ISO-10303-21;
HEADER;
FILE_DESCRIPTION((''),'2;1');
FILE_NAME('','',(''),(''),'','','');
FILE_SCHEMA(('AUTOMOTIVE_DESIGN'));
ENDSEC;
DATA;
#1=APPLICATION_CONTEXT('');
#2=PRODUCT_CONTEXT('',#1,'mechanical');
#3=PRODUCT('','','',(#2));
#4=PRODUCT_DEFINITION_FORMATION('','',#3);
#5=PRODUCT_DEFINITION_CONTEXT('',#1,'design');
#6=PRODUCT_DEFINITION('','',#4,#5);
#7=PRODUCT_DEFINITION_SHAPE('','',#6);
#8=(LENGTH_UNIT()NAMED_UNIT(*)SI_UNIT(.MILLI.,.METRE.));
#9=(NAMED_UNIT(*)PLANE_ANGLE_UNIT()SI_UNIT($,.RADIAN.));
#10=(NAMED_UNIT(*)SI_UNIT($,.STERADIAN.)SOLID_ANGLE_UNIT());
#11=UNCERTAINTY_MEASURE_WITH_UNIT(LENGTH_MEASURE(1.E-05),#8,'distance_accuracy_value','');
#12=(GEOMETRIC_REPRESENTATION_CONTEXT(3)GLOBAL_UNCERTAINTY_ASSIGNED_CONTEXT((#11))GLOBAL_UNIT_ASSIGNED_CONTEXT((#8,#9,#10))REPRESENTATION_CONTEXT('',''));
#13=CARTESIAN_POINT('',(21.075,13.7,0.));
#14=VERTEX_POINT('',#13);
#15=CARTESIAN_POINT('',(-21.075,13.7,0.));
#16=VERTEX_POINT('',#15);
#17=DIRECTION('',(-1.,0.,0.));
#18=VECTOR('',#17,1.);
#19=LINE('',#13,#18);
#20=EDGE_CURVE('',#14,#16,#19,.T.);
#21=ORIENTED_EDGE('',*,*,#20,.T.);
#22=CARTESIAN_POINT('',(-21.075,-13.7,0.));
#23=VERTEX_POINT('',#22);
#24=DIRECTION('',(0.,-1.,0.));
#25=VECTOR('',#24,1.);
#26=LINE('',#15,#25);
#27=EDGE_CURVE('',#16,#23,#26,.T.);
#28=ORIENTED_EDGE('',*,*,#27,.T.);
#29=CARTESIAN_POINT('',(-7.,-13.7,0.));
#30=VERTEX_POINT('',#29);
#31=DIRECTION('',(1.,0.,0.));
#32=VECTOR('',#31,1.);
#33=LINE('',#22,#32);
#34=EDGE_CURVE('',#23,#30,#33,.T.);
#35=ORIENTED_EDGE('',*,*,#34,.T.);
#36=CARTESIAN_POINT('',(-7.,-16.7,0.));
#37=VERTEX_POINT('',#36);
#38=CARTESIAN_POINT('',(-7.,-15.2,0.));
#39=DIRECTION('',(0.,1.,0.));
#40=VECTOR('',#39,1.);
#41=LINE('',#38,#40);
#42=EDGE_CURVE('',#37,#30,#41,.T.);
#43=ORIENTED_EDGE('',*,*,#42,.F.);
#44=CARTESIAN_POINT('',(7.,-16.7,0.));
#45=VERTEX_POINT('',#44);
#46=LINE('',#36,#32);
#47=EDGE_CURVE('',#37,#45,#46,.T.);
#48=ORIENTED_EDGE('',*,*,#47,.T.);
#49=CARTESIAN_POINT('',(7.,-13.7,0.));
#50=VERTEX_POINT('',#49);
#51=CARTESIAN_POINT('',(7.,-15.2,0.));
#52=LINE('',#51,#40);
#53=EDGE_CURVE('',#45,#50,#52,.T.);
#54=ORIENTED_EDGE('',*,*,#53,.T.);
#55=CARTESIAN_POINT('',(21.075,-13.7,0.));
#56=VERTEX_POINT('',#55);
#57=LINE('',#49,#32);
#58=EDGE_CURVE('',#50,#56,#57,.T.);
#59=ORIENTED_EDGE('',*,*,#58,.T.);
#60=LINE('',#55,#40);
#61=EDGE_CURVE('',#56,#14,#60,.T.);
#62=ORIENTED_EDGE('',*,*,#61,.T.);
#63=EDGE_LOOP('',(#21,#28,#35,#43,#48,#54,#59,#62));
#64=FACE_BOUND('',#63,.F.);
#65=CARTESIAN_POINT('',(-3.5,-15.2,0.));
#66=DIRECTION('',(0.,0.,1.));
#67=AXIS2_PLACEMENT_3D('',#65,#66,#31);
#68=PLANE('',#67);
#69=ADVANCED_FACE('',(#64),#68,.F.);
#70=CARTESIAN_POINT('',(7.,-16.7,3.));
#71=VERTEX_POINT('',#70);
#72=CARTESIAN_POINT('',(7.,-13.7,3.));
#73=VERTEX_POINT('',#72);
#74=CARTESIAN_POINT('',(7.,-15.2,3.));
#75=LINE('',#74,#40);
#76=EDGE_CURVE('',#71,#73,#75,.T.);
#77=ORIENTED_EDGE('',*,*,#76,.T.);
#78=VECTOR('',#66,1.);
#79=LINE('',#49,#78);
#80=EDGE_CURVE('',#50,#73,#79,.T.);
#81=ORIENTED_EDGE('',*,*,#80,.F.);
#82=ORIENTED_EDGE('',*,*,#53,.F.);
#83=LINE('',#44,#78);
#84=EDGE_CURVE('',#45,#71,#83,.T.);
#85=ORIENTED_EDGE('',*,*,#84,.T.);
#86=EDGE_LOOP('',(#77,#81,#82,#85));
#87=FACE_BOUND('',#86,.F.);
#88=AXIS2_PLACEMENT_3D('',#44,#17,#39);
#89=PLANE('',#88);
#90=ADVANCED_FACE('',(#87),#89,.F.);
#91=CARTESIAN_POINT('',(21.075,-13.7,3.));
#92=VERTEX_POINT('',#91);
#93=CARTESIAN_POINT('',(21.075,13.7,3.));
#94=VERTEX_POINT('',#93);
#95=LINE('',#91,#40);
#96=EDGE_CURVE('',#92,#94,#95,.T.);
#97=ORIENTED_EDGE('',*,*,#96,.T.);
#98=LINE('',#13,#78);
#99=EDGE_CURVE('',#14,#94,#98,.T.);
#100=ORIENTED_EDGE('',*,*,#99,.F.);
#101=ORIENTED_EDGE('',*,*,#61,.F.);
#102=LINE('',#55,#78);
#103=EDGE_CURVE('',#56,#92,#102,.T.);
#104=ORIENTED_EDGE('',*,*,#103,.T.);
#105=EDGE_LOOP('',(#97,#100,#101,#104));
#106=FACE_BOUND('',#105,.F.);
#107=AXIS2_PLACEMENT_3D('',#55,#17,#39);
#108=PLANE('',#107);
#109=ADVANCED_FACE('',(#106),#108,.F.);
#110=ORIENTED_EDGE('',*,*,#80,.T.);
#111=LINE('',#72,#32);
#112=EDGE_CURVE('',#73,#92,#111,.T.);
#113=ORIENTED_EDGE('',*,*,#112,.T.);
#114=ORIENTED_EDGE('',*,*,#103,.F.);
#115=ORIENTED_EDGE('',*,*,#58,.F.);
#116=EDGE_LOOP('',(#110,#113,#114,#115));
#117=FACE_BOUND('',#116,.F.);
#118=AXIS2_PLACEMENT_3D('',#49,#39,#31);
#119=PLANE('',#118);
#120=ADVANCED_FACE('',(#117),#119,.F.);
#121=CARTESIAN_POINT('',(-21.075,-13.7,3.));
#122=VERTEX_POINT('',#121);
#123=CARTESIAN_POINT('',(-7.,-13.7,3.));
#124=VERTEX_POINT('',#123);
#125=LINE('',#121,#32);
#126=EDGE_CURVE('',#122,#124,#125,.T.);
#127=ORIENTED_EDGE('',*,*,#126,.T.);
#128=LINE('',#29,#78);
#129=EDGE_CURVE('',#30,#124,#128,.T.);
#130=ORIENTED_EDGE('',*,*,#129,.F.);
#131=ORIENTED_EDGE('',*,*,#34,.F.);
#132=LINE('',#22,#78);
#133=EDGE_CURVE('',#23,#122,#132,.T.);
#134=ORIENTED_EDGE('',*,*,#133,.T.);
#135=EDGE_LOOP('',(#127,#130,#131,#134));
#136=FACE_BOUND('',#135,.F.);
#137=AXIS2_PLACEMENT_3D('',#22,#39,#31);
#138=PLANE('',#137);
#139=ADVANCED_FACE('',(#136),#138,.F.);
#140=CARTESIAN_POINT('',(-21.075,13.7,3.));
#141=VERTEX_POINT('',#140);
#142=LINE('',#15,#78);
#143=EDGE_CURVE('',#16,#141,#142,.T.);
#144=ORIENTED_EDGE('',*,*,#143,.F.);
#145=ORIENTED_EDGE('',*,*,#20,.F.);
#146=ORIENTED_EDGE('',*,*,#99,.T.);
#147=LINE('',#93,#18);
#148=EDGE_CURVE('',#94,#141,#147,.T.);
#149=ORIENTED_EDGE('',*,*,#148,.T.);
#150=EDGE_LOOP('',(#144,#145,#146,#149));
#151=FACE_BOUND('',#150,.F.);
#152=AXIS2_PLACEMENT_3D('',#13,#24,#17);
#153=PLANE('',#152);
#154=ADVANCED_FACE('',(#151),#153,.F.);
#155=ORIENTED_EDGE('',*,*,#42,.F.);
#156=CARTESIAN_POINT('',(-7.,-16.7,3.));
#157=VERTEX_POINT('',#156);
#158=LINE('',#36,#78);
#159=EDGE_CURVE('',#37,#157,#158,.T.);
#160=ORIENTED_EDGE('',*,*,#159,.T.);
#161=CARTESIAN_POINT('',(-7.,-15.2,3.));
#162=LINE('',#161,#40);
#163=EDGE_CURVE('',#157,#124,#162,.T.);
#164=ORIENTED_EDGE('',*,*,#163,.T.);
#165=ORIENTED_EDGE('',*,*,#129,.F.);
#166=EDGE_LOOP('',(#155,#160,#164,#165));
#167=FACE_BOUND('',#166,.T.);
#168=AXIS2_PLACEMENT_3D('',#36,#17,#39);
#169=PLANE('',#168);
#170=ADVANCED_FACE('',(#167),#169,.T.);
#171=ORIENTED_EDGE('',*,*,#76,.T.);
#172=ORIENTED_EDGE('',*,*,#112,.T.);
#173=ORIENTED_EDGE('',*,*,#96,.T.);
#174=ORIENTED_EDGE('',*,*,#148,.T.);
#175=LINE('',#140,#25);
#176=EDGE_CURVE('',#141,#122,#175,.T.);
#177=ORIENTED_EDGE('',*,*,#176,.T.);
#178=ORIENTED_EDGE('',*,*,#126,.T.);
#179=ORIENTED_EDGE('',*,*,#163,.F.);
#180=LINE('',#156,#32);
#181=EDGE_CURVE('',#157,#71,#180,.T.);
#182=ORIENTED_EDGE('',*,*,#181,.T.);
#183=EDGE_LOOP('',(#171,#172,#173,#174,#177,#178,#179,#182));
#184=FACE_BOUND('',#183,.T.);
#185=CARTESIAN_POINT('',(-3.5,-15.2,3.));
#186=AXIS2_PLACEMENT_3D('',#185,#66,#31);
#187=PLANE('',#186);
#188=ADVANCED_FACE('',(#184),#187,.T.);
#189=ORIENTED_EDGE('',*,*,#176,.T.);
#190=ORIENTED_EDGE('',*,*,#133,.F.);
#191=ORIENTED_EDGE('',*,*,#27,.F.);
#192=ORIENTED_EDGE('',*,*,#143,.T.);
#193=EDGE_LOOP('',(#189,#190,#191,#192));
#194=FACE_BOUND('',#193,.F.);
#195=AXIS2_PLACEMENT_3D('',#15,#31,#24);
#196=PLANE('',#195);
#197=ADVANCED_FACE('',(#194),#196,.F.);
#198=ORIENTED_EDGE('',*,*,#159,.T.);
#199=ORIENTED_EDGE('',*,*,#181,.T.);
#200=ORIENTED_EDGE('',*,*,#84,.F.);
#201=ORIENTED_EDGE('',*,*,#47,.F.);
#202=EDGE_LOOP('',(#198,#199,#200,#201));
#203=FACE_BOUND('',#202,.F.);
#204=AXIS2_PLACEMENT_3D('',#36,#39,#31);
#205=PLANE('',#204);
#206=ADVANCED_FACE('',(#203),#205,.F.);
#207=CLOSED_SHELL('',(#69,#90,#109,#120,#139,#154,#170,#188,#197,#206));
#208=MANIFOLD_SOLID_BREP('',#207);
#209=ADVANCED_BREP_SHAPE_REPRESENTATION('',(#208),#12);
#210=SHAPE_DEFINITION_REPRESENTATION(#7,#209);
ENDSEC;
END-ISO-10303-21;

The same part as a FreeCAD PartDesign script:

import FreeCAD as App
import Part
import Sketcher

doc = App.newDocument("Part")
body = doc.addObject("PartDesign::Body", "Body")

sketch1 = doc.addObject("Sketcher::SketchObject", "Sketch")
body.addObject(sketch1)
sketch1.AttachmentSupport = (doc.XY_Plane, [""])
sketch1.MapMode = "FlatFace"
sketch1.addGeometry(Part.LineSegment(App.Vector(-7, -13.7, 0), App.Vector(-7, -16.7, 0)), False)
sketch1.addGeometry(Part.LineSegment(App.Vector(-7, -16.7, 0), App.Vector(7, -16.7, 0)), False)
sketch1.addGeometry(Part.LineSegment(App.Vector(7, -16.7, 0), App.Vector(7, -13.7, 0)), False)
sketch1.addGeometry(Part.LineSegment(App.Vector(7, -13.7, 0), App.Vector(21.075, -13.7, 0)), False)
sketch1.addGeometry(Part.LineSegment(App.Vector(21.075, -13.7, 0), App.Vector(21.075, 13.7, 0)), False)
sketch1.addGeometry(Part.LineSegment(App.Vector(21.075, 13.7, 0), App.Vector(-21.075, 13.7, 0)), False)
sketch1.addGeometry(Part.LineSegment(App.Vector(-21.075, 13.7, 0), App.Vector(-21.075, -13.7, 0)), False)
sketch1.addGeometry(Part.LineSegment(App.Vector(-21.075, -13.7, 0), App.Vector(-7, -13.7, 0)), False)
sketch1.addConstraint(Sketcher.Constraint("Coincident", 0, 2, 1, 1))
sketch1.addConstraint(Sketcher.Constraint("Coincident", 1, 2, 2, 1))
sketch1.addConstraint(Sketcher.Constraint("Coincident", 2, 2, 3, 1))
sketch1.addConstraint(Sketcher.Constraint("Coincident", 3, 2, 4, 1))
sketch1.addConstraint(Sketcher.Constraint("Coincident", 4, 2, 5, 1))
sketch1.addConstraint(Sketcher.Constraint("Coincident", 5, 2, 6, 1))
sketch1.addConstraint(Sketcher.Constraint("Coincident", 6, 2, 7, 1))
sketch1.addConstraint(Sketcher.Constraint("Coincident", 7, 2, 0, 1))
sketch1.addConstraint(Sketcher.Constraint("Vertical", 0))
sketch1.addConstraint(Sketcher.Constraint("Horizontal", 1))
sketch1.addConstraint(Sketcher.Constraint("Vertical", 2))
sketch1.addConstraint(Sketcher.Constraint("Horizontal", 3))
sketch1.addConstraint(Sketcher.Constraint("Vertical", 4))
sketch1.addConstraint(Sketcher.Constraint("Horizontal", 5))
sketch1.addConstraint(Sketcher.Constraint("Vertical", 6))
sketch1.addConstraint(Sketcher.Constraint("Horizontal", 7))
sketch1.addConstraint(Sketcher.Constraint("Symmetric", 3, 2, 5, 2, -1, 1))
sketch1.addConstraint(Sketcher.Constraint("Symmetric", 2, 2, 7, 2, -2))
sketch1.addConstraint(Sketcher.Constraint("DistanceX", 1, 1, 1, 2, 14.0))
sketch1.addConstraint(Sketcher.Constraint("DistanceY", 0, 2, 0, 1, 3.0))
sketch1.addConstraint(Sketcher.Constraint("DistanceY", 4, 1, 4, 2, 27.4))
sketch1.addConstraint(Sketcher.Constraint("DistanceX", 5, 2, 5, 1, 42.15))
pad1 = doc.addObject("PartDesign::Pad", "Pad")
body.addObject(pad1)
pad1.Profile = sketch1
pad1.Length = 3

doc.recompute()
